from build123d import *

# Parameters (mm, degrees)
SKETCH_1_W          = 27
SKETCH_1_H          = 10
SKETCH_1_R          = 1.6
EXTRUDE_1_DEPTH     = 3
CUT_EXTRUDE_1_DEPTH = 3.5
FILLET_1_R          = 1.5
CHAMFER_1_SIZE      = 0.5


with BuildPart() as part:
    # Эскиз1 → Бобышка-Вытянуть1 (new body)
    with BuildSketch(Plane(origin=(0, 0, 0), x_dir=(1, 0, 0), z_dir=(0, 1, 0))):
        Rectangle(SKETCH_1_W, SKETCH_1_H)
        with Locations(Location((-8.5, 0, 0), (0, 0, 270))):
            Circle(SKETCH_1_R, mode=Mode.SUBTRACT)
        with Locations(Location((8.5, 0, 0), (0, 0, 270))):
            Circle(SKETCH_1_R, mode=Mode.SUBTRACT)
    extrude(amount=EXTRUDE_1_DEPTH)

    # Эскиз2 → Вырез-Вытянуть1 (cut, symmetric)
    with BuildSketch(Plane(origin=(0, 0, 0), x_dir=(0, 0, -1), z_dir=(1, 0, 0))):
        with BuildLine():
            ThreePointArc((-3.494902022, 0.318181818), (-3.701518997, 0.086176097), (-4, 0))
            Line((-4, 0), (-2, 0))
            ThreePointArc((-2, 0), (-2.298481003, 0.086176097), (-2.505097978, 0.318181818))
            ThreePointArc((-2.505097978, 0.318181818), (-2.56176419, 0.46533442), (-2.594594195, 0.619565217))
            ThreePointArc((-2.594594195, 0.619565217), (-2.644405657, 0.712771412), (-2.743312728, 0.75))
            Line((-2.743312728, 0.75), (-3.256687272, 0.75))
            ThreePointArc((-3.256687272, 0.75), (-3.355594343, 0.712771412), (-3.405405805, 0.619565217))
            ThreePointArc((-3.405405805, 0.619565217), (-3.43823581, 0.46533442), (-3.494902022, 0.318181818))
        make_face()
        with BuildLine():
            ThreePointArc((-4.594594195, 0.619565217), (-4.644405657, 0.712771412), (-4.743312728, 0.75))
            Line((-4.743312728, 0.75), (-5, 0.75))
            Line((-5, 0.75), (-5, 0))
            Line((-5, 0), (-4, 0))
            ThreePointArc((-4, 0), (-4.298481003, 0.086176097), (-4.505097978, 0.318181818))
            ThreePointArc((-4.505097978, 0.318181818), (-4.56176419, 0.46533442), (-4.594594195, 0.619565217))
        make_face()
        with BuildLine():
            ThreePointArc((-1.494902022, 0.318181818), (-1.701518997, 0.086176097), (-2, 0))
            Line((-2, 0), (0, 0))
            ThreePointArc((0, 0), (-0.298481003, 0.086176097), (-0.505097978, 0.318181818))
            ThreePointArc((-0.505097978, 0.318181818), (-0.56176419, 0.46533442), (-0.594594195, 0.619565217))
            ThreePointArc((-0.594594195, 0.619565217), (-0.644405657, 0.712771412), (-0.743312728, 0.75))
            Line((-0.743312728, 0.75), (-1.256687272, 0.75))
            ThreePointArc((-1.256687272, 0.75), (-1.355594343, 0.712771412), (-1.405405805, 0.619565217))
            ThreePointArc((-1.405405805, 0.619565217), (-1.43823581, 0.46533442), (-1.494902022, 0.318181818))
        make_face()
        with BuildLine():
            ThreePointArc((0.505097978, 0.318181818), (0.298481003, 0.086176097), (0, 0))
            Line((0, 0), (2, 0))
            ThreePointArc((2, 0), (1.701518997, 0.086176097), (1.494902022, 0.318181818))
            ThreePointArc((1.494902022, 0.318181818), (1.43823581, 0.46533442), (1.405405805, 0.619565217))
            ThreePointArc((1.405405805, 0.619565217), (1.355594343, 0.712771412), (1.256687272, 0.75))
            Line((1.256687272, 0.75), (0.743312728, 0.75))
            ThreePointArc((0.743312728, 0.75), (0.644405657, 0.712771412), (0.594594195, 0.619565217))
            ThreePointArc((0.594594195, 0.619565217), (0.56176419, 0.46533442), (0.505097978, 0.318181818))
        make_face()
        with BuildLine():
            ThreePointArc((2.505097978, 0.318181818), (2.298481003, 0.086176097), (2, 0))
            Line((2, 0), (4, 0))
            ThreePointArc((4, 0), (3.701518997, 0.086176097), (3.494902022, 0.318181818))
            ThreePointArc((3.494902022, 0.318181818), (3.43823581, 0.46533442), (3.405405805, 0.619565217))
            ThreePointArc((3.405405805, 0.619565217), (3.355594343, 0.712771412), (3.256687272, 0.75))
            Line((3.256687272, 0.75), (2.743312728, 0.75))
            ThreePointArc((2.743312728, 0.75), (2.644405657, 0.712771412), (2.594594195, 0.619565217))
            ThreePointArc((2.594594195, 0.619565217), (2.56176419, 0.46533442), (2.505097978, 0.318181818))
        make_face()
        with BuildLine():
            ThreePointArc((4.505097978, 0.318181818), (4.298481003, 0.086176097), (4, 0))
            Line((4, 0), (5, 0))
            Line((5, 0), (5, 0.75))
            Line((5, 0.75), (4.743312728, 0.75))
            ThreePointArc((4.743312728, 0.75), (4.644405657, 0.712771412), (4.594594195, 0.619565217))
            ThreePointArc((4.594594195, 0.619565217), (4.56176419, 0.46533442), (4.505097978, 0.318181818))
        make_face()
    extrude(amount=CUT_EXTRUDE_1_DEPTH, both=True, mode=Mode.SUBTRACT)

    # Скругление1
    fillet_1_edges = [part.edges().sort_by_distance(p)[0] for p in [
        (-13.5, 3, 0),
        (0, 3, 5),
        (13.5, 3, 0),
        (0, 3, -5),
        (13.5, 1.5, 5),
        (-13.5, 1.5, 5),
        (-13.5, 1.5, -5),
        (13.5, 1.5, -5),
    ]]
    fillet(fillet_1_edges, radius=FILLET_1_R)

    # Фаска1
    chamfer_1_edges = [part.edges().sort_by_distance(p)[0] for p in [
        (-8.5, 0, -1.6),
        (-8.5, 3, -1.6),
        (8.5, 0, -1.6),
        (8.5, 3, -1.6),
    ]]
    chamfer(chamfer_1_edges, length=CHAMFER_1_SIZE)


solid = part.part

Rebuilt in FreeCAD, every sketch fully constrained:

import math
import FreeCAD as App
import Part
import Sketcher


def edges_at(feature, points):
    """Names of the edges that pass closest to the given points."""
    edges = feature.Shape.Edges
    near = lambda p: min(range(len(edges)), key=lambda i: edges[i].distToShape(Part.Vertex(*p))[0])
    return sorted({f"Edge{near(p) + 1}" for p in points})


def add_polygon(sketch, points):
    """Adds a closed chain of lines whose ends are joined by coincident constraints."""
    first, n = sketch.GeometryCount, len(points)
    for a, b in zip(points, points[1:] + points[:1]):
        sketch.addGeometry(Part.LineSegment(App.Vector(*a, 0), App.Vector(*b, 0)), False)
    for i in range(n):
        sketch.addConstraint(Sketcher.Constraint("Coincident", first + i, 2, first + (i + 1) % n, 1))

doc = App.newDocument("Part")
body = doc.addObject("PartDesign::Body", "Body")

# Sketch on XZ plane
sketch1 = body.newObject("Sketcher::SketchObject", "Sketch")
sketch1.AttachmentSupport = (doc.getObject("XZ_Plane"), [""])
sketch1.MapMode = "FlatFace"
add_polygon(sketch1, [(-13.5, -5), (-13.5, 5), (13.5, 5), (13.5, -5)])  # lines 0-3
sketch1.addGeometry(Part.Circle(App.Vector(-8.5, 0, 0), App.Vector(0, 0, 1), 1.6), False)  # 4
sketch1.addGeometry(Part.Circle(App.Vector(8.5, 0, 0), App.Vector(0, 0, 1), 1.6), False)  # 5
sketch1.addConstraint(Sketcher.Constraint("Vertical", 0))
sketch1.addConstraint(Sketcher.Constraint("Horizontal", 1))
sketch1.addConstraint(Sketcher.Constraint("Vertical", 2))
sketch1.addConstraint(Sketcher.Constraint("Horizontal", 3))
sketch1.addConstraint(Sketcher.Constraint("Equal", 4, 5))
sketch1.addConstraint(Sketcher.Constraint("Symmetric", 4, 3, 5, 3, -1, 1))
sketch1.addConstraint(Sketcher.Constraint("Symmetric", 0, 2, 2, 2, -1, 1))
sketch1.addConstraint(Sketcher.Constraint("PointOnObject", 4, 3, -1))
sketch1.addConstraint(Sketcher.Constraint("Diameter", 4, 3.2))
sketch1.addConstraint(Sketcher.Constraint("DistanceX", 1, 1, 1, 2, 27.0))
sketch1.addConstraint(Sketcher.Constraint("DistanceY", 0, 1, 0, 2, 10.0))
sketch1.addConstraint(Sketcher.Constraint("DistanceX", 4, 3, 5, 3, 17.0))
pad1 = body.newObject("PartDesign::Pad", "Pad")
pad1.Profile = sketch1
pad1.Length = 3
pad1.Reversed = True

# Sketch on YZ plane
sketch2 = body.newObject("Sketcher::SketchObject", "Sketch001")
sketch2.AttachmentSupport = (doc.getObject("YZ_Plane"), [""])
sketch2.MapMode = "FlatFace"
sketch2.addGeometry(Part.ArcOfCircle(Part.Circle(App.Vector(0.56, 4, 0), App.Vector(0, 0, 1), 0.56), math.radians(180), math.radians(244)), False)
sketch2.addGeometry(Part.LineSegment(App.Vector(0, 4, 0), App.Vector(0, 2, 0)), False)
sketch2.addGeometry(Part.ArcOfCircle(Part.Circle(App.Vector(0.56, 2, 0), App.Vector(0, 0, 1), 0.56), math.radians(116), math.radians(180)), False)
sketch2.addGeometry(Part.ArcOfCircle(Part.Circle(App.Vector(0.75, 1.6, 0), App.Vector(0, 0, 1), 1), math.radians(97.49), math.radians(115.58)), False)
sketch2.addGeometry(Part.ArcOfCircle(Part.Circle(App.Vector(0.6, 2.74, 0), App.Vector(0, 0, 1), 0.15), math.radians(-83), math.radians(0)), False)
sketch2.addGeometry(Part.LineSegment(App.Vector(0.75, 2.74, 0), App.Vector(0.75, 3.26, 0)), False)
sketch2.addGeometry(Part.ArcOfCircle(Part.Circle(App.Vector(0.6, 3.26, 0), App.Vector(0, 0, 1), 0.15), math.radians(0), math.radians(83)), False)
sketch2.addGeometry(Part.ArcOfCircle(Part.Circle(App.Vector(0.75, 4.4, 0), App.Vector(0, 0, 1), 1), math.radians(-115.58), math.radians(-97.49)), False)
sketch2.addGeometry(Part.ArcOfCircle(Part.Circle(App.Vector(0.6, 4.74, 0), App.Vector(0, 0, 1), 0.15), math.radians(-83), math.radians(0)), False)
sketch2.addGeometry(Part.LineSegment(App.Vector(0.75, 4.74, 0), App.Vector(0.75, 5, 0)), False)
sketch2.addGeometry(Part.LineSegment(App.Vector(0.75, 5, 0), App.Vector(0, 5, 0)), False)
sketch2.addGeometry(Part.LineSegment(App.Vector(0, 5, 0), App.Vector(0, 4, 0)), False)
sketch2.addGeometry(Part.ArcOfCircle(Part.Circle(App.Vector(0.56, 4, 0), App.Vector(0, 0, 1), 0.56), math.radians(116), math.radians(180)), False)
sketch2.addGeometry(Part.ArcOfCircle(Part.Circle(App.Vector(0.75, 3.6, 0), App.Vector(0, 0, 1), 1), math.radians(97.49), math.radians(115.58)), False)
sketch2.addGeometry(Part.ArcOfCircle(Part.Circle(App.Vector(0.56, 2, 0), App.Vector(0, 0, 1), 0.56), math.radians(180), math.radians(244)), False)
sketch2.addGeometry(Part.LineSegment(App.Vector(0, 2, 0), App.Vector(0, 0, 0)), False)
sketch2.addGeometry(Part.ArcOfCircle(Part.Circle(App.Vector(0.56, 0, 0), App.Vector(0, 0, 1), 0.56), math.radians(116), math.radians(180)), False)
sketch2.addGeometry(Part.ArcOfCircle(Part.Circle(App.Vector(0.75, -0.4, 0), App.Vector(0, 0, 1), 1), math.radians(97.49), math.radians(115.58)), False)
sketch2.addGeometry(Part.ArcOfCircle(Part.Circle(App.Vector(0.6, 0.74, 0), App.Vector(0, 0, 1), 0.15), math.radians(-83), math.radians(0)), False)
sketch2.addGeometry(Part.LineSegment(App.Vector(0.75, 0.74, 0), App.Vector(0.75, 1.26, 0)), False)
sketch2.addGeometry(Part.ArcOfCircle(Part.Circle(App.Vector(0.6, 1.26, 0), App.Vector(0, 0, 1), 0.15), math.radians(0), math.radians(83)), False)
sketch2.addGeometry(Part.ArcOfCircle(Part.Circle(App.Vector(0.75, 2.4, 0), App.Vector(0, 0, 1), 1), math.radians(-115.58), math.radians(-97.49)), False)
sketch2.addGeometry(Part.ArcOfCircle(Part.Circle(App.Vector(0.56, 0, 0), App.Vector(0, 0, 1), 0.56), math.radians(180), math.radians(244)), False)
sketch2.addGeometry(Part.LineSegment(App.Vector(0, 0, 0), App.Vector(0, -2, 0)), False)
sketch2.addGeometry(Part.ArcOfCircle(Part.Circle(App.Vector(0.56, -2, 0), App.Vector(0, 0, 1), 0.56), math.radians(116), math.radians(180)), False)
sketch2.addGeometry(Part.ArcOfCircle(Part.Circle(App.Vector(0.75, -2.4, 0), App.Vector(0, 0, 1), 1), math.radians(97.49), math.radians(115.58)), False)
sketch2.addGeometry(Part.ArcOfCircle(Part.Circle(App.Vector(0.6, -1.26, 0), App.Vector(0, 0, 1), 0.15), math.radians(-83), math.radians(0)), False)
sketch2.addGeometry(Part.LineSegment(App.Vector(0.75, -1.26, 0), App.Vector(0.75, -0.74, 0)), False)
sketch2.addGeometry(Part.ArcOfCircle(Part.Circle(App.Vector(0.6, -0.74, 0), App.Vector(0, 0, 1), 0.15), math.radians(0), math.radians(83)), False)
sketch2.addGeometry(Part.ArcOfCircle(Part.Circle(App.Vector(0.75, 0.4, 0), App.Vector(0, 0, 1), 1), math.radians(-115.58), math.radians(-97.49)), False)
sketch2.addGeometry(Part.ArcOfCircle(Part.Circle(App.Vector(0.56, -2, 0), App.Vector(0, 0, 1), 0.56), math.radians(180), math.radians(244)), False)
sketch2.addGeometry(Part.LineSegment(App.Vector(0, -2, 0), App.Vector(0, -4, 0)), False)
sketch2.addGeometry(Part.ArcOfCircle(Part.Circle(App.Vector(0.56, -4, 0), App.Vector(0, 0, 1), 0.56), math.radians(116), math.radians(180)), False)
sketch2.addGeometry(Part.ArcOfCircle(Part.Circle(App.Vector(0.75, -4.4, 0), App.Vector(0, 0, 1), 1), math.radians(97.49), math.radians(115.58)), False)
sketch2.addGeometry(Part.ArcOfCircle(Part.Circle(App.Vector(0.6, -3.26, 0), App.Vector(0, 0, 1), 0.15), math.radians(-83), math.radians(0)), False)
sketch2.addGeometry(Part.LineSegment(App.Vector(0.75, -3.26, 0), App.Vector(0.75, -2.74, 0)), False)
sketch2.addGeometry(Part.ArcOfCircle(Part.Circle(App.Vector(0.6, -2.74, 0), App.Vector(0, 0, 1), 0.15), math.radians(0), math.radians(83)), False)
sketch2.addGeometry(Part.ArcOfCircle(Part.Circle(App.Vector(0.75, -1.6, 0), App.Vector(0, 0, 1), 1), math.radians(-115.58), math.radians(-97.49)), False)
sketch2.addGeometry(Part.ArcOfCircle(Part.Circle(App.Vector(0.56, -4, 0), App.Vector(0, 0, 1), 0.56), math.radians(180), math.radians(244)), False)
sketch2.addGeometry(Part.LineSegment(App.Vector(0, -4, 0), App.Vector(0, -5, 0)), False)
sketch2.addGeometry(Part.LineSegment(App.Vector(0, -5, 0), App.Vector(0.75, -5, 0)), False)
sketch2.addGeometry(Part.LineSegment(App.Vector(0.75, -5, 0), App.Vector(0.75, -4.74, 0)), False)
sketch2.addGeometry(Part.ArcOfCircle(Part.Circle(App.Vector(0.6, -4.74, 0), App.Vector(0, 0, 1), 0.15), math.radians(0), math.radians(83)), False)
sketch2.addGeometry(Part.ArcOfCircle(Part.Circle(App.Vector(0.75, -3.6, 0), App.Vector(0, 0, 1), 1), math.radians(-115.58), math.radians(-97.49)), False)
sketch2.addConstraint(Sketcher.Constraint("Tangent", 0, 1, 1, 1))
sketch2.addConstraint(Sketcher.Constraint("Tangent", 1, 2, 2, 2))
sketch2.addConstraint(Sketcher.Constraint("Tangent", 2, 1, 3, 2))
sketch2.addConstraint(Sketcher.Constraint("Tangent", 3, 1, 4, 1))
sketch2.addConstraint(Sketcher.Constraint("Tangent", 4, 2, 5, 1))
sketch2.addConstraint(Sketcher.Constraint("Tangent", 5, 2, 6, 1))
sketch2.addConstraint(Sketcher.Constraint("Tangent", 6, 2, 7, 2))
sketch2.addConstraint(Sketcher.Constraint("Tangent", 7, 1, 0, 2))
sketch2.addConstraint(Sketcher.Constraint("Tangent", 8, 2, 9, 1))
sketch2.addConstraint(Sketcher.Constraint("Coincident", 9, 2, 10, 1))
sketch2.addConstraint(Sketcher.Constraint("Coincident", 10, 2, 11, 1))
sketch2.addConstraint(Sketcher.Constraint("Tangent", 11, 2, 12, 2))
sketch2.addConstraint(Sketcher.Constraint("Tangent", 12, 1, 13, 2))
sketch2.addConstraint(Sketcher.Constraint("Tangent", 13, 1, 8, 1))
sketch2.addConstraint(Sketcher.Constraint("Tangent", 14, 1, 15, 1))
sketch2.addConstraint(Sketcher.Constraint("Tangent", 15, 2, 16, 2))
sketch2.addConstraint(Sketcher.Constraint("Tangent", 16, 1, 17, 2))
sketch2.addConstraint(Sketcher.Constraint("Tangent", 17, 1, 18, 1))
sketch2.addConstraint(Sketcher.Constraint("Tangent", 18, 2, 19, 1))
sketch2.addConstraint(Sketcher.Constraint("Tangent", 19, 2, 20, 1))
sketch2.addConstraint(Sketcher.Constraint("Tangent", 20, 2, 21, 2))
sketch2.addConstraint(Sketcher.Constraint("Tangent", 21, 1, 14, 2))
sketch2.addConstraint(Sketcher.Constraint("Tangent", 22, 1, 23, 1))
sketch2.addConstraint(Sketcher.Constraint("Tangent", 23, 2, 24, 2))
sketch2.addConstraint(Sketcher.Constraint("Tangent", 24, 1, 25, 2))
sketch2.addConstraint(Sketcher.Constraint("Tangent", 25, 1, 26, 1))
sketch2.addConstraint(Sketcher.Constraint("Tangent", 26, 2, 27, 1))
sketch2.addConstraint(Sketcher.Constraint("Tangent", 27, 2, 28, 1))
sketch2.addConstraint(Sketcher.Constraint("Tangent", 28, 2, 29, 2))
sketch2.addConstraint(Sketcher.Constraint("Tangent", 29, 1, 22, 2))
sketch2.addConstraint(Sketcher.Constraint("Tangent", 30, 1, 31, 1))
sketch2.addConstraint(Sketcher.Constraint("Tangent", 31, 2, 32, 2))
sketch2.addConstraint(Sketcher.Constraint("Tangent", 32, 1, 33, 2))
sketch2.addConstraint(Sketcher.Constraint("Tangent", 33, 1, 34, 1))
sketch2.addConstraint(Sketcher.Constraint("Tangent", 34, 2, 35, 1))
sketch2.addConstraint(Sketcher.Constraint("Tangent", 35, 2, 36, 1))
sketch2.addConstraint(Sketcher.Constraint("Tangent", 36, 2, 37, 2))
sketch2.addConstraint(Sketcher.Constraint("Tangent", 37, 1, 30, 2))
sketch2.addConstraint(Sketcher.Constraint("Tangent", 38, 1, 39, 1))
sketch2.addConstraint(Sketcher.Constraint("Coincident", 39, 2, 40, 1))
sketch2.addConstraint(Sketcher.Constraint("Coincident", 40, 2, 41, 1))
sketch2.addConstraint(Sketcher.Constraint("Tangent", 41, 2, 42, 1))
sketch2.addConstraint(Sketcher.Constraint("Tangent", 42, 2, 43, 2))
sketch2.addConstraint(Sketcher.Constraint("Tangent", 43, 1, 38, 2))
sketch2.addConstraint(Sketcher.Constraint("Vertical", 1))
sketch2.addConstraint(Sketcher.Constraint("Vertical", 5))
sketch2.addConstraint(Sketcher.Constraint("Vertical", 9))
sketch2.addConstraint(Sketcher.Constraint("Horizontal", 10))
sketch2.addConstraint(Sketcher.Constraint("Vertical", 11))
sketch2.addConstraint(Sketcher.Constraint("Vertical", 15))
sketch2.addConstraint(Sketcher.Constraint("Vertical", 19))
sketch2.addConstraint(Sketcher.Constraint("Vertical", 23))
sketch2.addConstraint(Sketcher.Constraint("Vertical", 27))
sketch2.addConstraint(Sketcher.Constraint("Vertical", 31))
sketch2.addConstraint(Sketcher.Constraint("Vertical", 35))
sketch2.addConstraint(Sketcher.Constraint("Vertical", 39))
sketch2.addConstraint(Sketcher.Constraint("Horizontal", 40))
sketch2.addConstraint(Sketcher.Constraint("Vertical", 41))
sketch2.addConstraint(Sketcher.Constraint("Coincident", 15, 2, -1, 1))
sketch2.addConstraint(Sketcher.Constraint("Coincident", 22, 1, -1, 1))
sketch2.addConstraint(Sketcher.Constraint("Coincident", 12, 3, 0, 3))
sketch2.addConstraint(Sketcher.Constraint("Coincident", 14, 3, 2, 3))
sketch2.addConstraint(Sketcher.Constraint("Coincident", 30, 3, 24, 3))
sketch2.addConstraint(Sketcher.Constraint("Coincident", 38, 3, 32, 3))
sketch2.addConstraint(Sketcher.Constraint("Equal", 0, 2))
sketch2.addConstraint(Sketcher.Constraint("Equal", 4, 6))
sketch2.addConstraint(Sketcher.Constraint("Equal", 3, 7))
sketch2.addConstraint(Sketcher.Constraint("Equal", 6, 8))
sketch2.addConstraint(Sketcher.Constraint("Equal", 2, 12))
sketch2.addConstraint(Sketcher.Constraint("Equal", 7, 13))
sketch2.addConstraint(Sketcher.Constraint("Equal", 12, 14))
sketch2.addConstraint(Sketcher.Constraint("Equal", 14, 16))
sketch2.addConstraint(Sketcher.Constraint("Equal", 13, 17))
sketch2.addConstraint(Sketcher.Constraint("Equal", 8, 18))
sketch2.addConstraint(Sketcher.Constraint("Equal", 18, 20))
sketch2.addConstraint(Sketcher.Constraint("Equal", 17, 21))
sketch2.addConstraint(Sketcher.Constraint("Equal", 16, 22))
sketch2.addConstraint(Sketcher.Constraint("Equal", 22, 24))
sketch2.addConstraint(Sketcher.Constraint("Equal", 21, 25))
sketch2.addConstraint(Sketcher.Constraint("Equal", 20, 26))
sketch2.addConstraint(Sketcher.Constraint("Equal", 26, 28))
sketch2.addConstraint(Sketcher.Constraint("Equal", 25, 29))
sketch2.addConstraint(Sketcher.Constraint("Equal", 24, 30))
sketch2.addConstraint(Sketcher.Constraint("Equal", 30, 32))
sketch2.addConstraint(Sketcher.Constraint("Equal", 29, 33))
sketch2.addConstraint(Sketcher.Constraint("Equal", 28, 34))
sketch2.addConstraint(Sketcher.Constraint("Equal", 34, 36))
sketch2.addConstraint(Sketcher.Constraint("Equal", 33, 37))
sketch2.addConstraint(Sketcher.Constraint("Equal", 32, 38))
sketch2.addConstraint(Sketcher.Constraint("Equal", 36, 42))
sketch2.addConstraint(Sketcher.Constraint("Equal", 37, 43))
sketch2.addConstraint(Sketcher.Constraint("Symmetric", 21, 3, 25, 3, -1))
sketch2.addConstraint(Sketcher.Constraint("Symmetric", 18, 3, 28, 3, -1))
sketch2.addConstraint(Sketcher.Constraint("Symmetric", 7, 3, 33, 3, -1))
sketch2.addConstraint(Sketcher.Constraint("Symmetric", 4, 3, 36, 3, -1))
sketch2.addConstraint(Sketcher.Constraint("Symmetric", 8, 3, 42, 3, -1))
sketch2.addConstraint(Sketcher.Constraint("Vertical", 3, 3, 7, 3))
sketch2.addConstraint(Sketcher.Constraint("Vertical", 6, 3, 8, 3))
sketch2.addConstraint(Sketcher.Constraint("Vertical", 7, 3, 13, 3))
sketch2.addConstraint(Sketcher.Constraint("Vertical", 13, 3, 17, 3))
sketch2.addConstraint(Sketcher.Constraint("Vertical", 8, 3, 18, 3))
sketch2.addConstraint(Sketcher.Constraint("Vertical", 17, 3, 21, 3))
sketch2.addConstraint(Sketcher.Constraint("Vertical", 43, 3, 4, 2))
sketch2.addConstraint(Sketcher.Constraint("Equal", 1, 15))
sketch2.addConstraint(Sketcher.Constraint("Equal", 11, 39))
sketch2.addConstraint(Sketcher.Constraint("Radius", 3, 1.0))
sketch2.addConstraint(Sketcher.Constraint("DistanceY", 1, 2, 1, 1, 2.0))
sketch2.addConstraint(Sketcher.Constraint("DistanceY", 11, 2, 11, 1, 1.0))
sketch2.addConstraint(Sketcher.Constraint("Radius", 0, 0.56))
sketch2.addConstraint(Sketcher.Constraint("Radius", 4, 0.15))
sketch2.addConstraint(Sketcher.Constraint("DistanceX", 10, 2, 10, 1, 0.75))
pocket1 = body.newObject("PartDesign::Pocket", "Pocket")
pocket1.Profile = sketch2
pocket1.Length = 7
pocket1.Midplane = True
doc.recompute()

fillet = body.newObject("PartDesign::Fillet", "Fillet")
fillet.Base = (pocket1, edges_at(pocket1, [
    (-13.5, 3, 0),
    (0, 3, 5),
    (13.5, 3, 0),
    (0, 3, -5),
    (13.5, 1.5, 5),
    (-13.5, 1.5, 5),
    (-13.5, 1.5, -5),
    (13.5, 1.5, -5),
]))
fillet.Radius = 1.5
doc.recompute()

chamfer = body.newObject("PartDesign::Chamfer", "Chamfer")
chamfer.Base = (fillet, edges_at(fillet, [
    (-8.5, 0, -1.6),
    (-8.5, 3, -1.6),
    (8.5, 0, -1.6),
    (8.5, 3, -1.6),
]))
chamfer.Size = 0.5

doc.recompute()
